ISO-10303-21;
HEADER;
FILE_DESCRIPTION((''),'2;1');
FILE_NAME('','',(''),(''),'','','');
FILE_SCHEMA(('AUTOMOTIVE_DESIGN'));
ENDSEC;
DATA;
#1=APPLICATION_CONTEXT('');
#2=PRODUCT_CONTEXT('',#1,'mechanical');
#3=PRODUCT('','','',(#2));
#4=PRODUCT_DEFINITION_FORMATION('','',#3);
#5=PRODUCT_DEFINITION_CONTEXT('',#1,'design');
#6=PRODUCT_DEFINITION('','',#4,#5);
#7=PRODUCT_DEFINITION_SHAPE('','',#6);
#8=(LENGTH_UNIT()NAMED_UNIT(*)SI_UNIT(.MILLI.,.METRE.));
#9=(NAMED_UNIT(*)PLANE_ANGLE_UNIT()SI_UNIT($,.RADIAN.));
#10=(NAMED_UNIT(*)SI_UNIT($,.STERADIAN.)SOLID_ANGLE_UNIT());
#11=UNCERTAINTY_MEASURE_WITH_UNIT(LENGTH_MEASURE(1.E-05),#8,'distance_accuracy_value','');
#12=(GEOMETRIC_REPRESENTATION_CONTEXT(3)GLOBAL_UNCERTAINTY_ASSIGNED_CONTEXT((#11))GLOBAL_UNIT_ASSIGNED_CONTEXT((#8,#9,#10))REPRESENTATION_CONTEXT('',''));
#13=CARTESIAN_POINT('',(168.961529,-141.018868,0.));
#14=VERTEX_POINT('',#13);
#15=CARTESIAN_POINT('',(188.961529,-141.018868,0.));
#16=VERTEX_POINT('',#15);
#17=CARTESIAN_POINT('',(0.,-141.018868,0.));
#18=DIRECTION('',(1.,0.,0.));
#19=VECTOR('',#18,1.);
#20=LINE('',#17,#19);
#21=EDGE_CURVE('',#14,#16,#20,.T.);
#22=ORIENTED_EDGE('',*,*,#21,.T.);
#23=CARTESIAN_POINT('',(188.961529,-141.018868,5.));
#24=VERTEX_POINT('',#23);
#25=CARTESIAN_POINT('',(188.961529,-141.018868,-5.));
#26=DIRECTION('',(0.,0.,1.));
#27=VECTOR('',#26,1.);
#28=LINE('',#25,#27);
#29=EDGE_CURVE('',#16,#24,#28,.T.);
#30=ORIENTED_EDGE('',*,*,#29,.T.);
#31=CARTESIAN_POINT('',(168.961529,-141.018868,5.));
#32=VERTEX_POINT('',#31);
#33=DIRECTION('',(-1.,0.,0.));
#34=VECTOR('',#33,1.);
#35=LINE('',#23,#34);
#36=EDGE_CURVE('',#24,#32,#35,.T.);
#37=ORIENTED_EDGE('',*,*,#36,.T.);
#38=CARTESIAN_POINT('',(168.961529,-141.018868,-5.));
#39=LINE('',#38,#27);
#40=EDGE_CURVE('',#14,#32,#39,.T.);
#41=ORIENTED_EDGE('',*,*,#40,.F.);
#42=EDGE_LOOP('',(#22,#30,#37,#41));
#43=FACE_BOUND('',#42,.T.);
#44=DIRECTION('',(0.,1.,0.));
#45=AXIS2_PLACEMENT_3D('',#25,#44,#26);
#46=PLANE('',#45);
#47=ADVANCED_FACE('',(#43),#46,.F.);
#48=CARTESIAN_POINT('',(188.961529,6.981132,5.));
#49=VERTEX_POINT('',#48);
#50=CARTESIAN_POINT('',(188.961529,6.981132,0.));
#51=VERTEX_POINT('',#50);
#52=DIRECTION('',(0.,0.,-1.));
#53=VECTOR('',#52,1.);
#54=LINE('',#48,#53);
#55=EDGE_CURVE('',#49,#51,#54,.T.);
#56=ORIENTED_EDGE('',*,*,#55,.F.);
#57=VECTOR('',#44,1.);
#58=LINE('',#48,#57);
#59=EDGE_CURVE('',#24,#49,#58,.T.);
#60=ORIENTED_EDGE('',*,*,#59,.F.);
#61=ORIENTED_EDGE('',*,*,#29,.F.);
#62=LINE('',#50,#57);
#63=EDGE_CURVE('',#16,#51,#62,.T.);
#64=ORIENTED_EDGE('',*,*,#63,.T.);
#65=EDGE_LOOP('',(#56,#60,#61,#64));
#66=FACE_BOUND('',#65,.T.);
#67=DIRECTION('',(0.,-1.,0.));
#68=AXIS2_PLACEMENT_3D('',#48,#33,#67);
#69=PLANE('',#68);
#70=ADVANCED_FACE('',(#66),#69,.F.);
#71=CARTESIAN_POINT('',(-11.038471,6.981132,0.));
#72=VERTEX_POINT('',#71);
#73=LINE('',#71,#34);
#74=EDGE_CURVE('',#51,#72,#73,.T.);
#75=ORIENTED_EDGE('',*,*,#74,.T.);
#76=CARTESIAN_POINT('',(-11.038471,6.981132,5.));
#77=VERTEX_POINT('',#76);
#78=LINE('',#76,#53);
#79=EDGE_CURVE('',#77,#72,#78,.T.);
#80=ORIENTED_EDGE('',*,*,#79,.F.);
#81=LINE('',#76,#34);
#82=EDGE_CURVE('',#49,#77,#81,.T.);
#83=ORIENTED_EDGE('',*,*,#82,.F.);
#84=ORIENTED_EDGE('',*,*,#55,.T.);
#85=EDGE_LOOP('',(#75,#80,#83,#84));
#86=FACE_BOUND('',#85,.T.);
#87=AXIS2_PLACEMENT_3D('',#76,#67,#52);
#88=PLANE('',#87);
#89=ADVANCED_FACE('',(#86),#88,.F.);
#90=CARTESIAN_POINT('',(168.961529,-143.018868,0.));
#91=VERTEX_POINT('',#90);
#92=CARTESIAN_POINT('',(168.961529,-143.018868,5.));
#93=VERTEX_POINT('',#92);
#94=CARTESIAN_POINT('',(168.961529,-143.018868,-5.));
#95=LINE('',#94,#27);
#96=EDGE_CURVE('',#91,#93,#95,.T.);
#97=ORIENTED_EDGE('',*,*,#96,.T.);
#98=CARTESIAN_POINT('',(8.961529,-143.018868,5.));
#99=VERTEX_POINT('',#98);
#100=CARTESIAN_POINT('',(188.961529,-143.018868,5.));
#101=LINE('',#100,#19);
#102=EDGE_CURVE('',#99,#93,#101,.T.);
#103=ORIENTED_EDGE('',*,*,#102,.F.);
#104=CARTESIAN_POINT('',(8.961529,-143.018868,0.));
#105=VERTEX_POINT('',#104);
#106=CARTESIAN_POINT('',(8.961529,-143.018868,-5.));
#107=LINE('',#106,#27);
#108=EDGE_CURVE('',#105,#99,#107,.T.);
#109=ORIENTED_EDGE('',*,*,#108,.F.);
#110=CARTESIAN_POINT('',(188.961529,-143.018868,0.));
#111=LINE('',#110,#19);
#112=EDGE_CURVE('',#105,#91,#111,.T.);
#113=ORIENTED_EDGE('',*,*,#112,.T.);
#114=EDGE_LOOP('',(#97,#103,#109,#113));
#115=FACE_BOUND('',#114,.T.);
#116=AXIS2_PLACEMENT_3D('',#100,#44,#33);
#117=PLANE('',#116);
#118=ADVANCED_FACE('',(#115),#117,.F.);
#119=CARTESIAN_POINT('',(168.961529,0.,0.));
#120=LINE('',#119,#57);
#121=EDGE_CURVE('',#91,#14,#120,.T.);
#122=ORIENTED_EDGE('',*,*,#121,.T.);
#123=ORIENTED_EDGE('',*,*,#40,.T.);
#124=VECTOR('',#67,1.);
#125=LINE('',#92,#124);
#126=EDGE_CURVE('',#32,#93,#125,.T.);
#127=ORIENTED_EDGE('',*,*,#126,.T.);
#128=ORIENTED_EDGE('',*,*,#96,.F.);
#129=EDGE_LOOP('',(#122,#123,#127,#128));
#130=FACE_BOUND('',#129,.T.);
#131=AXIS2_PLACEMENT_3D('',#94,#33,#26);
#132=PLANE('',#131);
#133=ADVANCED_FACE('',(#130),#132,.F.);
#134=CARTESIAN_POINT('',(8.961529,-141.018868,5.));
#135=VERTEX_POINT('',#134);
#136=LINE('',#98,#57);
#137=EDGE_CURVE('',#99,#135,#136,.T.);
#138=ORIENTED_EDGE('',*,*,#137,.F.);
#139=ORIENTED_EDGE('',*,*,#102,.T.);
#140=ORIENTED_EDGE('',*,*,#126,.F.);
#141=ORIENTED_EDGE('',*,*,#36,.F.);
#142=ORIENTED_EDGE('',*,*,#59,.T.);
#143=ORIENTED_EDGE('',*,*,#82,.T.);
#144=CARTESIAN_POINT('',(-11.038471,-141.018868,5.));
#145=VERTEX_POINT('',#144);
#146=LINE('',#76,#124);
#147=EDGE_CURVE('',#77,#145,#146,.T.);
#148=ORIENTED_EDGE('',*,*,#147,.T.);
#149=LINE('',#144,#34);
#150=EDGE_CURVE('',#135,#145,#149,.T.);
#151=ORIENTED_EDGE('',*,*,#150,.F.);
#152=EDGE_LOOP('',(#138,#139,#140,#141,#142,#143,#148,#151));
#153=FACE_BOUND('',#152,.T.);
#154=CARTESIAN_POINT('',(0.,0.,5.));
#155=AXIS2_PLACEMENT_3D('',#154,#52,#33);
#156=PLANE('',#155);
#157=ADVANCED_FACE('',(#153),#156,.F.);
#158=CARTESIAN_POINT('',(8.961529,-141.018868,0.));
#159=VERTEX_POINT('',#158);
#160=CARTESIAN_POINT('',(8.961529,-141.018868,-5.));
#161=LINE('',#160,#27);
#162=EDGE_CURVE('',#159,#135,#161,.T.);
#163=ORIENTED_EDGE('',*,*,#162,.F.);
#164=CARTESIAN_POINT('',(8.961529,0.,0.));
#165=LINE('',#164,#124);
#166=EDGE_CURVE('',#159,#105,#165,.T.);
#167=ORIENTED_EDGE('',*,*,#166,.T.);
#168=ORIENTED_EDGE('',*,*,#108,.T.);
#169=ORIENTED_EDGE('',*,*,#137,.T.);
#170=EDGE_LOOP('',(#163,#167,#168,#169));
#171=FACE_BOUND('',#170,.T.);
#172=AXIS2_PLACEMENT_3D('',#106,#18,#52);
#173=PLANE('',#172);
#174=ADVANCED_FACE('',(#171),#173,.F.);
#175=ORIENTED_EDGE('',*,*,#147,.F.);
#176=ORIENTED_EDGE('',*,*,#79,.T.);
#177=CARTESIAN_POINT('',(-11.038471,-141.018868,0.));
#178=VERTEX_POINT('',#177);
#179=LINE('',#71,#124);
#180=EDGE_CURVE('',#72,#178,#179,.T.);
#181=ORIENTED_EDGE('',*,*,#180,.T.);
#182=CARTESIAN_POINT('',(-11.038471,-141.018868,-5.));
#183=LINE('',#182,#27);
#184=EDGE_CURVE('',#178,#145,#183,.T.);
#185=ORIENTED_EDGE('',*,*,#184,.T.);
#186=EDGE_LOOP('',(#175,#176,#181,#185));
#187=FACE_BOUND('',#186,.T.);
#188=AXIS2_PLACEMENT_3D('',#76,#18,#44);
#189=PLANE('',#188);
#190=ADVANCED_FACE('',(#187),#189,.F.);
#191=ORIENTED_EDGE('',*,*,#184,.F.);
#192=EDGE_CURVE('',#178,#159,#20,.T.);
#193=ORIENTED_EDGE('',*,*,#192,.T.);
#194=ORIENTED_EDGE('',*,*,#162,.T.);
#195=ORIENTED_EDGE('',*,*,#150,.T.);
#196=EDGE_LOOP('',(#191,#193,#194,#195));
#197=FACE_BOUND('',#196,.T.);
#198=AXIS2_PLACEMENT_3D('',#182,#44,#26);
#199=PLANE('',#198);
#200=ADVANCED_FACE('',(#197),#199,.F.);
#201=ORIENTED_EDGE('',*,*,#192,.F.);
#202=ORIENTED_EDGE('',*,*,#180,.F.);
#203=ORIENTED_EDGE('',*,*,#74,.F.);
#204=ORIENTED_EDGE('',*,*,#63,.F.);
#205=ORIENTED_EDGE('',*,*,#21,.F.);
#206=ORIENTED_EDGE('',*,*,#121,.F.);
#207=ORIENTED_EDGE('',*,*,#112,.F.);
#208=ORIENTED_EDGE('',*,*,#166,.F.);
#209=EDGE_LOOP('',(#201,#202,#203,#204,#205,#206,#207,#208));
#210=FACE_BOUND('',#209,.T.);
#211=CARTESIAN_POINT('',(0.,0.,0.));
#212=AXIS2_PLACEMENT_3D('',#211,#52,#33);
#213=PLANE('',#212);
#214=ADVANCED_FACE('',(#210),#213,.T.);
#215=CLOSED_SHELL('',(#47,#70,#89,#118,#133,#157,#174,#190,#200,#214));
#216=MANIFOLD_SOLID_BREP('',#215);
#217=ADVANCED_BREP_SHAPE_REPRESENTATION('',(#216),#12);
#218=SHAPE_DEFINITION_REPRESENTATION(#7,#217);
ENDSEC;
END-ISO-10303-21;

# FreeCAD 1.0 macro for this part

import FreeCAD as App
import Part
import Sketcher
from FreeCAD import Vector
Q = App.Units.Quantity

doc = App.newDocument("Part")
body = doc.addObject("PartDesign::Body", "Body")

# Sketch on XY plane
sketch1 = doc.addObject("Sketcher::SketchObject", "Sketch")
body.addObject(sketch1)
sketch1.AttachmentSupport = (doc.XY_Plane, [""])
sketch1.MapMode = "FlatFace"
sketch1.addGeometry([
    Part.LineSegment(Vector(-11, 7, 0), Vector(-11, -143, 0)),
    Part.LineSegment(Vector(-11, -143, 0), Vector(189, -143, 0)),
    Part.LineSegment(Vector(189, -143, 0), Vector(189, 7, 0)),
    Part.LineSegment(Vector(189, 7, 0), Vector(-11, 7, 0)),
], False)
sketch1.addConstraint([
    Sketcher.Constraint("Coincident", 0, 2, 1, 1),
    Sketcher.Constraint("Coincident", 1, 2, 2, 1),
    Sketcher.Constraint("Coincident", 2, 2, 3, 1),
    Sketcher.Constraint("Coincident", 3, 2, 0, 1),
    Sketcher.Constraint("Vertical", 0),
    Sketcher.Constraint("Horizontal", 1),
    Sketcher.Constraint("Vertical", 2),
    Sketcher.Constraint("Horizontal", 3),
    Sketcher.Constraint("DistanceX", 1, 1, 1, 2, Q("200 mm")),
    Sketcher.Constraint("DistanceY", 0, 2, 0, 1, Q("150 mm")),
    Sketcher.Constraint("DistanceX", 0, 2, -1, 1, Q("11.038471 mm")),
    Sketcher.Constraint("DistanceY", 0, 2, -1, 1, Q("143.018868 mm")),
])
pad1 = doc.addObject("PartDesign::Pad", "Pad")
body.addObject(pad1)
pad1.Profile = sketch1
pad1.Length = 5

# Sketch on XY plane
sketch2 = doc.addObject("Sketcher::SketchObject", "Sketch001")
body.addObject(sketch2)
sketch2.AttachmentSupport = (doc.XY_Plane, [""])
sketch2.MapMode = "FlatFace"
sketch2.AttachmentOffset = App.Placement(Vector(0, 0, 5), App.Rotation())
sketch2.addGeometry([
    Part.LineSegment(Vector(169, -141, 0), Vector(169, -143, 0)),  # 0
    Part.LineSegment(Vector(169, -143, 0), Vector(189, -143, 0)),  # 1
    Part.LineSegment(Vector(189, -143, 0), Vector(189, -141, 0)),  # 2
    Part.LineSegment(Vector(189, -141, 0), Vector(169, -141, 0)),  # 3
    Part.LineSegment(Vector(-11, -141, 0), Vector(-11, -143, 0)),  # 4
    Part.LineSegment(Vector(-11, -143, 0), Vector(9, -143, 0)),  # 5
    Part.LineSegment(Vector(9, -143, 0), Vector(9, -141, 0)),  # 6
    Part.LineSegment(Vector(9, -141, 0), Vector(-11, -141, 0)),  # 7
], False)
sketch2.addConstraint([
    Sketcher.Constraint("Coincident", 0, 2, 1, 1),
    Sketcher.Constraint("Coincident", 1, 2, 2, 1),
    Sketcher.Constraint("Coincident", 2, 2, 3, 1),
    Sketcher.Constraint("Coincident", 3, 2, 0, 1),
    Sketcher.Constraint("Coincident", 4, 2, 5, 1),
    Sketcher.Constraint("Coincident", 5, 2, 6, 1),
    Sketcher.Constraint("Coincident", 6, 2, 7, 1),
    Sketcher.Constraint("Coincident", 7, 2, 4, 1),
    Sketcher.Constraint("Vertical", 0),
    Sketcher.Constraint("Horizontal", 1),
    Sketcher.Constraint("Vertical", 2),
    Sketcher.Constraint("Horizontal", 3),
    Sketcher.Constraint("Vertical", 4),
    Sketcher.Constraint("Horizontal", 5),
    Sketcher.Constraint("Vertical", 6),
    Sketcher.Constraint("Horizontal", 7),
    Sketcher.Constraint("Horizontal", 1, 2, 4, 2),
    Sketcher.Constraint("Horizontal", 3, 2, 6, 2),
    Sketcher.Constraint("Equal", 3, 5),
    Sketcher.Constraint("DistanceX", 1, 1, 1, 2, Q("20 mm")),
    Sketcher.Constraint("DistanceY", 0, 2, 0, 1, Q("2 mm")),
    Sketcher.Constraint("DistanceX", 4, 2, 0, 2, Q("180 mm")),
    Sketcher.Constraint("DistanceX", -1, 1, 0, 2, Q("168.961529 mm")),
    Sketcher.Constraint("DistanceY", 0, 2, -1, 1, Q("143.018868 mm")),
])
pocket1 = doc.addObject("PartDesign::Pocket", "Pocket")
body.addObject(pocket1)
pocket1.Profile = sketch2
pocket1.Length = 10

doc.recompute()
